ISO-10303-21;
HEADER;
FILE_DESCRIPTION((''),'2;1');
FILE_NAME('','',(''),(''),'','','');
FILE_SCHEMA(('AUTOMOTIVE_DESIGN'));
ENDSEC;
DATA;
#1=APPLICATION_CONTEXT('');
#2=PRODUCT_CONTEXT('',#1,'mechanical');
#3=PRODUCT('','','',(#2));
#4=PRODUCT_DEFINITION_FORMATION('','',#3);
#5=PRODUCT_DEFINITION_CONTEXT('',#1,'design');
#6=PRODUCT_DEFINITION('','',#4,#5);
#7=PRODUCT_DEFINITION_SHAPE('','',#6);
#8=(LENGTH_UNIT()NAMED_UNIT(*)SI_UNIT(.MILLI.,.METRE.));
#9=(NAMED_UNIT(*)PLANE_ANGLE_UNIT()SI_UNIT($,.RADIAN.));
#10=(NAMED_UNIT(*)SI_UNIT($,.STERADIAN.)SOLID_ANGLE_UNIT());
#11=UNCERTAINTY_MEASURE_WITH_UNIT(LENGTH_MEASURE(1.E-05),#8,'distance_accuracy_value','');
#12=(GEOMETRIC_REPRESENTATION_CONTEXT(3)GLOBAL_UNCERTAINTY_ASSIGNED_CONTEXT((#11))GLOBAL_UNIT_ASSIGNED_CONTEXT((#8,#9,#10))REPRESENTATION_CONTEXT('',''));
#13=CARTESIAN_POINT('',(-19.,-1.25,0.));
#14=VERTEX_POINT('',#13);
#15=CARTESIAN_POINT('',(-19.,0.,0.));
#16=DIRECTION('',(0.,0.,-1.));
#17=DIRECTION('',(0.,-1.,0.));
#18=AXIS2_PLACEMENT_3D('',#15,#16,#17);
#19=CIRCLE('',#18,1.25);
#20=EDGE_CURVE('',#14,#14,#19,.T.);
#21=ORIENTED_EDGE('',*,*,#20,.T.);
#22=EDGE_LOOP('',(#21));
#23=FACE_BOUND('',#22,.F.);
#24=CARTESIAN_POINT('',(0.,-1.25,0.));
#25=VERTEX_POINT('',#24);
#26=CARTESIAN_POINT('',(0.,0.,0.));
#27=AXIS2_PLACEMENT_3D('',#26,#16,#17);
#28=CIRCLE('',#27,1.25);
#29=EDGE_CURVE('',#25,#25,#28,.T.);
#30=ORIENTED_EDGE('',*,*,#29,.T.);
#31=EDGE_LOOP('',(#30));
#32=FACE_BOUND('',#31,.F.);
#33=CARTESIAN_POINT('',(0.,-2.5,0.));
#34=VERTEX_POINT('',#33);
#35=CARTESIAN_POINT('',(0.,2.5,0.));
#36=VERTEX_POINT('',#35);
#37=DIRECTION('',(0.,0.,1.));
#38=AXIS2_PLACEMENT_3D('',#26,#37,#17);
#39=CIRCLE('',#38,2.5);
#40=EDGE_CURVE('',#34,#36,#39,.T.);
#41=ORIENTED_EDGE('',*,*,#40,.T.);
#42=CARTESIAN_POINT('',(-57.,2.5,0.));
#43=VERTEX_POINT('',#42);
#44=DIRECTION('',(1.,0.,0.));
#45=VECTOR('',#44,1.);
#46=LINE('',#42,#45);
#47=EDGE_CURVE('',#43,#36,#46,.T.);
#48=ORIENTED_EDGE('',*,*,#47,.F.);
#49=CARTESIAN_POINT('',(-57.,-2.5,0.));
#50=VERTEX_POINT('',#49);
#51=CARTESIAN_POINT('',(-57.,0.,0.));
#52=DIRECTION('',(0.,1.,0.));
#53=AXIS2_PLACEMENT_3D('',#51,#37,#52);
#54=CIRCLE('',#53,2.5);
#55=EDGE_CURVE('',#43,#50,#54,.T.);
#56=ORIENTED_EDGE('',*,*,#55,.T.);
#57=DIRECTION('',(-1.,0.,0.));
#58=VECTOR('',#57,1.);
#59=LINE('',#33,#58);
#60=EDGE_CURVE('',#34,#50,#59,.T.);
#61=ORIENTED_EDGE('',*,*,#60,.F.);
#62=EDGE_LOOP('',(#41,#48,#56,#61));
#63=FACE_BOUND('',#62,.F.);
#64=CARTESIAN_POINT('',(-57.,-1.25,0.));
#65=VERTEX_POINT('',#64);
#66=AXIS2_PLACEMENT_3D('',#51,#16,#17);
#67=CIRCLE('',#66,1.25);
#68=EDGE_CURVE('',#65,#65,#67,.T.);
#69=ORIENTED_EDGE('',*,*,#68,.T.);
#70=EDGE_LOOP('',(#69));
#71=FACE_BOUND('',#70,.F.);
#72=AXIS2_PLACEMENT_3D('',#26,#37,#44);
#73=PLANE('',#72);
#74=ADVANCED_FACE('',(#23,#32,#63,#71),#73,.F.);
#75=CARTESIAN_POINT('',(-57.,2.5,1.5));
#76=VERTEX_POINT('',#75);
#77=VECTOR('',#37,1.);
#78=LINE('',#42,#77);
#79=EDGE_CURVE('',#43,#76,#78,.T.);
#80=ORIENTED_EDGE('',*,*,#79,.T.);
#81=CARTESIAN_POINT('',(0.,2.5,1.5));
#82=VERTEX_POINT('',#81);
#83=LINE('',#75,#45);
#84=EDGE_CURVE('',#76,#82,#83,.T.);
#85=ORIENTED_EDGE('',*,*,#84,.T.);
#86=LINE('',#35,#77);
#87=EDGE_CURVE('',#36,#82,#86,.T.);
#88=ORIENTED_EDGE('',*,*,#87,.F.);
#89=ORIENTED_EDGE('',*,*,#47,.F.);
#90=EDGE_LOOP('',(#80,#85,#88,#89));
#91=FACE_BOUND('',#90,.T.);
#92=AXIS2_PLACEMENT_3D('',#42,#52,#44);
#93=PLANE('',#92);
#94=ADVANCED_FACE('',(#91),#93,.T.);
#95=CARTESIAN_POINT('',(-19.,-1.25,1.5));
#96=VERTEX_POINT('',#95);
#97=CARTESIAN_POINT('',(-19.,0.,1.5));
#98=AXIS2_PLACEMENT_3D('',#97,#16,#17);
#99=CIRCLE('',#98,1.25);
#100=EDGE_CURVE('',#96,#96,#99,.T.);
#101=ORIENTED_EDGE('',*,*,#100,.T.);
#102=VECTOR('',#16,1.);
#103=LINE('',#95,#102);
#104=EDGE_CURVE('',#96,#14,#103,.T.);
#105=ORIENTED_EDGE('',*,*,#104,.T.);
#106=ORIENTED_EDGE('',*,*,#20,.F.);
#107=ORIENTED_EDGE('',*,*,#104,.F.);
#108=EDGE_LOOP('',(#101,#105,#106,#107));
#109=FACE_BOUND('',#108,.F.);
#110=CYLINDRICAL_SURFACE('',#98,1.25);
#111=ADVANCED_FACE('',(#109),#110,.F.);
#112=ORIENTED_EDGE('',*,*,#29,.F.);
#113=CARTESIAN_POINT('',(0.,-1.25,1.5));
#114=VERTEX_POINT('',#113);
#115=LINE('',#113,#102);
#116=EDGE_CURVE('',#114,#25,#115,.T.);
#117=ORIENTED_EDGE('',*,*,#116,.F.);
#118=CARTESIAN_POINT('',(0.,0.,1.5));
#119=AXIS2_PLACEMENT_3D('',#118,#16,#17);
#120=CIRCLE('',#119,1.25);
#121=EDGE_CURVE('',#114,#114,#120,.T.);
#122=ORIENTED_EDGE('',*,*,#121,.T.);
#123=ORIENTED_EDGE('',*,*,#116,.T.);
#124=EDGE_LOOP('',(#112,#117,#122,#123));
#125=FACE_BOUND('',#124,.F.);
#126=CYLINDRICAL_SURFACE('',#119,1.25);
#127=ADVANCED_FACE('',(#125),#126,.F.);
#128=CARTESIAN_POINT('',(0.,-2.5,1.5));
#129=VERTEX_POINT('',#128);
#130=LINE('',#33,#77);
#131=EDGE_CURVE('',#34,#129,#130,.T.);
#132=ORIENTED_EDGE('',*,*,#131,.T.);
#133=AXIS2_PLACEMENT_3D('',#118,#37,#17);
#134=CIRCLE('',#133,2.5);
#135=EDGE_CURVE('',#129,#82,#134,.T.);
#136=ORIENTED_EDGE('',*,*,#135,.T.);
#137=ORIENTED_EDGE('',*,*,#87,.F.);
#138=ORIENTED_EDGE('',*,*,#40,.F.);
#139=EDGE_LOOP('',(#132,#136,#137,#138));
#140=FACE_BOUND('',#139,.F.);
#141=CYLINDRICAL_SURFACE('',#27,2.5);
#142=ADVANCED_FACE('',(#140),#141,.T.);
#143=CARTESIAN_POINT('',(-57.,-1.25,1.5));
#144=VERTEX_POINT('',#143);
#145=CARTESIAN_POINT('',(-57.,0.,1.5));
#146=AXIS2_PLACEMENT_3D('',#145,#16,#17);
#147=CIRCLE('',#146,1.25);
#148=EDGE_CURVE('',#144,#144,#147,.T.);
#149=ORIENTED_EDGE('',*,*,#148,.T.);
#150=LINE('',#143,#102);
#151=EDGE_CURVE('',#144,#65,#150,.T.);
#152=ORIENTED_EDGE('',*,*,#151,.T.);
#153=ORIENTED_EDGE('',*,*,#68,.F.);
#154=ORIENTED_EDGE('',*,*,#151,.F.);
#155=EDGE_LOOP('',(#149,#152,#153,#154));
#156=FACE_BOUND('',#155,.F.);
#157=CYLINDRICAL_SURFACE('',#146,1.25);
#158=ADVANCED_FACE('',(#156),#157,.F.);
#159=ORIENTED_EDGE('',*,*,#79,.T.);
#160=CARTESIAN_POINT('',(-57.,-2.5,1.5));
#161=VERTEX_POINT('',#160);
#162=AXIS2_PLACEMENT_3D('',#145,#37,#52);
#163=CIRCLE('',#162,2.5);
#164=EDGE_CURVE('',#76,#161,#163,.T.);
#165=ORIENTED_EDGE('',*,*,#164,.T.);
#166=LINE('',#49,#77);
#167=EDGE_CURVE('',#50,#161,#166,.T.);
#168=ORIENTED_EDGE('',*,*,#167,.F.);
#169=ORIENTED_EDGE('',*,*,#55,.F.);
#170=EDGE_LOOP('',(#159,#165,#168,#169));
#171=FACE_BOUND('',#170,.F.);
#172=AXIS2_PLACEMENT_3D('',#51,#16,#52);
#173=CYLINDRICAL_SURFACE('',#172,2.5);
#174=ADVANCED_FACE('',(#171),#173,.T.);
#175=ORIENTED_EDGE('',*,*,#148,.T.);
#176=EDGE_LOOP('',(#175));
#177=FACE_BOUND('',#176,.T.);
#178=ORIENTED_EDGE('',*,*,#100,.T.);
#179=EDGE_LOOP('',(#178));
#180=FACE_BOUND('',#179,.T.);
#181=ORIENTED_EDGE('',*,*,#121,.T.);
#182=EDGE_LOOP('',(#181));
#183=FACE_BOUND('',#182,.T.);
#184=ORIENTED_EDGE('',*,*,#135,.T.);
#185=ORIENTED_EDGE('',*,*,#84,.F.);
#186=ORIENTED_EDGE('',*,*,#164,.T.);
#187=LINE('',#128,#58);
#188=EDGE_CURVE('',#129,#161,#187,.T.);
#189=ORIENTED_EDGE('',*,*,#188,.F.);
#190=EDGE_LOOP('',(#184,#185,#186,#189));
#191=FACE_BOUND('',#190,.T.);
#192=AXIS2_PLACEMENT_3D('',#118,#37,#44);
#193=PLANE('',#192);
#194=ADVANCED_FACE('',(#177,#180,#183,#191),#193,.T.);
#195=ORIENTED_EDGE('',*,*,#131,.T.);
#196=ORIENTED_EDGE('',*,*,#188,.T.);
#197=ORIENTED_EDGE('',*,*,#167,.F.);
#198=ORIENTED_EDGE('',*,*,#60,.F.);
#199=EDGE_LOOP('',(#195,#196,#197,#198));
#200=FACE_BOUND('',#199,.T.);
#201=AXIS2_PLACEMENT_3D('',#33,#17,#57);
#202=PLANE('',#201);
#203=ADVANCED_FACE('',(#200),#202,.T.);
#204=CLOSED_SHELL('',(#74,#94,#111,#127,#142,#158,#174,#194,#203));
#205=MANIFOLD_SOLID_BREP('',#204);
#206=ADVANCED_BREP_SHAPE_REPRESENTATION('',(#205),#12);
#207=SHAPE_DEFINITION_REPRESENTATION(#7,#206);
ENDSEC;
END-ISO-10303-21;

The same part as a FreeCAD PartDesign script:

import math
import FreeCAD as App
import Part
import Sketcher
from FreeCAD import Vector

doc = App.newDocument("Part")
body = doc.addObject("PartDesign::Body", "Body")

# Sketch on XY plane
sketch1 = body.newObject("Sketcher::SketchObject", "Sketch")
sketch1.AttachmentSupport = (doc.getObject("XY_Plane"), [""])
sketch1.MapMode = "FlatFace"
sketch1.addGeometry([
    Part.LineSegment(Vector(-57, -2.5, 0), Vector(0, -2.5, 0)),
    Part.ArcOfCircle(Part.Circle(Vector(0, 0, 0), Vector(0, 0, 1), 2.5), math.radians(-90), math.radians(90)),
    Part.LineSegment(Vector(0, 2.5, 0), Vector(-57, 2.5, 0)),
    Part.ArcOfCircle(Part.Circle(Vector(-57, 0, 0), Vector(0, 0, 1), 2.5), math.radians(90), math.radians(270)),
], False)
sketch1.addConstraint([
    Sketcher.Constraint("Tangent", 0, 2, 1, 1),
    Sketcher.Constraint("Tangent", 1, 2, 2, 1),
    Sketcher.Constraint("Tangent", 2, 2, 3, 1),
    Sketcher.Constraint("Tangent", 3, 2, 0, 1),
    Sketcher.Constraint("Horizontal", 0),
    Sketcher.Constraint("Horizontal", 2),
    Sketcher.Constraint("Coincident", 1, 3, -1, 1),
    Sketcher.Constraint("Radius", 1, 2.5),
    Sketcher.Constraint("DistanceX", 0, 1, 0, 2, 57.0),
])
pad1 = body.newObject("PartDesign::Pad", "Pad")
pad1.Profile = sketch1
pad1.Length = 1.5

# Sketch on XY plane
sketch2 = body.newObject("Sketcher::SketchObject", "Sketch001")
sketch2.AttachmentSupport = (doc.getObject("XY_Plane"), [""])
sketch2.MapMode = "FlatFace"
sketch2.AttachmentOffset = App.Placement(Vector(0, 0, 1.5), App.Rotation())
sketch2.addGeometry([
    Part.Circle(Vector(-57, 0, 0), Vector(0, 0, 1), 1.25),
    Part.Circle(Vector(-19, 0, 0), Vector(0, 0, 1), 1.25),
    Part.Circle(Vector(0, 0, 0), Vector(0, 0, 1), 1.25),
], False)
sketch2.addConstraint([
    Sketcher.Constraint("Coincident", 2, 3, -1, 1),
    Sketcher.Constraint("Equal", 0, 1),
    Sketcher.Constraint("Equal", 1, 2),
    Sketcher.Constraint("PointOnObject", 0, 3, -1),
    Sketcher.Constraint("PointOnObject", 1, 3, -1),
    Sketcher.Constraint("Diameter", 0, 2.5),
    Sketcher.Constraint("DistanceX", 0, 3, -1, 1, 57.0),
    Sketcher.Constraint("DistanceX", 1, 3, -1, 1, 19.0),
])
doc.recompute()
hole = body.newObject("PartDesign::Hole", "Hole")
hole.Profile = sketch2
hole.ThreadType = "None"
hole.Diameter = 2.5
hole.DepthType = "ThroughAll"

doc.recompute()
